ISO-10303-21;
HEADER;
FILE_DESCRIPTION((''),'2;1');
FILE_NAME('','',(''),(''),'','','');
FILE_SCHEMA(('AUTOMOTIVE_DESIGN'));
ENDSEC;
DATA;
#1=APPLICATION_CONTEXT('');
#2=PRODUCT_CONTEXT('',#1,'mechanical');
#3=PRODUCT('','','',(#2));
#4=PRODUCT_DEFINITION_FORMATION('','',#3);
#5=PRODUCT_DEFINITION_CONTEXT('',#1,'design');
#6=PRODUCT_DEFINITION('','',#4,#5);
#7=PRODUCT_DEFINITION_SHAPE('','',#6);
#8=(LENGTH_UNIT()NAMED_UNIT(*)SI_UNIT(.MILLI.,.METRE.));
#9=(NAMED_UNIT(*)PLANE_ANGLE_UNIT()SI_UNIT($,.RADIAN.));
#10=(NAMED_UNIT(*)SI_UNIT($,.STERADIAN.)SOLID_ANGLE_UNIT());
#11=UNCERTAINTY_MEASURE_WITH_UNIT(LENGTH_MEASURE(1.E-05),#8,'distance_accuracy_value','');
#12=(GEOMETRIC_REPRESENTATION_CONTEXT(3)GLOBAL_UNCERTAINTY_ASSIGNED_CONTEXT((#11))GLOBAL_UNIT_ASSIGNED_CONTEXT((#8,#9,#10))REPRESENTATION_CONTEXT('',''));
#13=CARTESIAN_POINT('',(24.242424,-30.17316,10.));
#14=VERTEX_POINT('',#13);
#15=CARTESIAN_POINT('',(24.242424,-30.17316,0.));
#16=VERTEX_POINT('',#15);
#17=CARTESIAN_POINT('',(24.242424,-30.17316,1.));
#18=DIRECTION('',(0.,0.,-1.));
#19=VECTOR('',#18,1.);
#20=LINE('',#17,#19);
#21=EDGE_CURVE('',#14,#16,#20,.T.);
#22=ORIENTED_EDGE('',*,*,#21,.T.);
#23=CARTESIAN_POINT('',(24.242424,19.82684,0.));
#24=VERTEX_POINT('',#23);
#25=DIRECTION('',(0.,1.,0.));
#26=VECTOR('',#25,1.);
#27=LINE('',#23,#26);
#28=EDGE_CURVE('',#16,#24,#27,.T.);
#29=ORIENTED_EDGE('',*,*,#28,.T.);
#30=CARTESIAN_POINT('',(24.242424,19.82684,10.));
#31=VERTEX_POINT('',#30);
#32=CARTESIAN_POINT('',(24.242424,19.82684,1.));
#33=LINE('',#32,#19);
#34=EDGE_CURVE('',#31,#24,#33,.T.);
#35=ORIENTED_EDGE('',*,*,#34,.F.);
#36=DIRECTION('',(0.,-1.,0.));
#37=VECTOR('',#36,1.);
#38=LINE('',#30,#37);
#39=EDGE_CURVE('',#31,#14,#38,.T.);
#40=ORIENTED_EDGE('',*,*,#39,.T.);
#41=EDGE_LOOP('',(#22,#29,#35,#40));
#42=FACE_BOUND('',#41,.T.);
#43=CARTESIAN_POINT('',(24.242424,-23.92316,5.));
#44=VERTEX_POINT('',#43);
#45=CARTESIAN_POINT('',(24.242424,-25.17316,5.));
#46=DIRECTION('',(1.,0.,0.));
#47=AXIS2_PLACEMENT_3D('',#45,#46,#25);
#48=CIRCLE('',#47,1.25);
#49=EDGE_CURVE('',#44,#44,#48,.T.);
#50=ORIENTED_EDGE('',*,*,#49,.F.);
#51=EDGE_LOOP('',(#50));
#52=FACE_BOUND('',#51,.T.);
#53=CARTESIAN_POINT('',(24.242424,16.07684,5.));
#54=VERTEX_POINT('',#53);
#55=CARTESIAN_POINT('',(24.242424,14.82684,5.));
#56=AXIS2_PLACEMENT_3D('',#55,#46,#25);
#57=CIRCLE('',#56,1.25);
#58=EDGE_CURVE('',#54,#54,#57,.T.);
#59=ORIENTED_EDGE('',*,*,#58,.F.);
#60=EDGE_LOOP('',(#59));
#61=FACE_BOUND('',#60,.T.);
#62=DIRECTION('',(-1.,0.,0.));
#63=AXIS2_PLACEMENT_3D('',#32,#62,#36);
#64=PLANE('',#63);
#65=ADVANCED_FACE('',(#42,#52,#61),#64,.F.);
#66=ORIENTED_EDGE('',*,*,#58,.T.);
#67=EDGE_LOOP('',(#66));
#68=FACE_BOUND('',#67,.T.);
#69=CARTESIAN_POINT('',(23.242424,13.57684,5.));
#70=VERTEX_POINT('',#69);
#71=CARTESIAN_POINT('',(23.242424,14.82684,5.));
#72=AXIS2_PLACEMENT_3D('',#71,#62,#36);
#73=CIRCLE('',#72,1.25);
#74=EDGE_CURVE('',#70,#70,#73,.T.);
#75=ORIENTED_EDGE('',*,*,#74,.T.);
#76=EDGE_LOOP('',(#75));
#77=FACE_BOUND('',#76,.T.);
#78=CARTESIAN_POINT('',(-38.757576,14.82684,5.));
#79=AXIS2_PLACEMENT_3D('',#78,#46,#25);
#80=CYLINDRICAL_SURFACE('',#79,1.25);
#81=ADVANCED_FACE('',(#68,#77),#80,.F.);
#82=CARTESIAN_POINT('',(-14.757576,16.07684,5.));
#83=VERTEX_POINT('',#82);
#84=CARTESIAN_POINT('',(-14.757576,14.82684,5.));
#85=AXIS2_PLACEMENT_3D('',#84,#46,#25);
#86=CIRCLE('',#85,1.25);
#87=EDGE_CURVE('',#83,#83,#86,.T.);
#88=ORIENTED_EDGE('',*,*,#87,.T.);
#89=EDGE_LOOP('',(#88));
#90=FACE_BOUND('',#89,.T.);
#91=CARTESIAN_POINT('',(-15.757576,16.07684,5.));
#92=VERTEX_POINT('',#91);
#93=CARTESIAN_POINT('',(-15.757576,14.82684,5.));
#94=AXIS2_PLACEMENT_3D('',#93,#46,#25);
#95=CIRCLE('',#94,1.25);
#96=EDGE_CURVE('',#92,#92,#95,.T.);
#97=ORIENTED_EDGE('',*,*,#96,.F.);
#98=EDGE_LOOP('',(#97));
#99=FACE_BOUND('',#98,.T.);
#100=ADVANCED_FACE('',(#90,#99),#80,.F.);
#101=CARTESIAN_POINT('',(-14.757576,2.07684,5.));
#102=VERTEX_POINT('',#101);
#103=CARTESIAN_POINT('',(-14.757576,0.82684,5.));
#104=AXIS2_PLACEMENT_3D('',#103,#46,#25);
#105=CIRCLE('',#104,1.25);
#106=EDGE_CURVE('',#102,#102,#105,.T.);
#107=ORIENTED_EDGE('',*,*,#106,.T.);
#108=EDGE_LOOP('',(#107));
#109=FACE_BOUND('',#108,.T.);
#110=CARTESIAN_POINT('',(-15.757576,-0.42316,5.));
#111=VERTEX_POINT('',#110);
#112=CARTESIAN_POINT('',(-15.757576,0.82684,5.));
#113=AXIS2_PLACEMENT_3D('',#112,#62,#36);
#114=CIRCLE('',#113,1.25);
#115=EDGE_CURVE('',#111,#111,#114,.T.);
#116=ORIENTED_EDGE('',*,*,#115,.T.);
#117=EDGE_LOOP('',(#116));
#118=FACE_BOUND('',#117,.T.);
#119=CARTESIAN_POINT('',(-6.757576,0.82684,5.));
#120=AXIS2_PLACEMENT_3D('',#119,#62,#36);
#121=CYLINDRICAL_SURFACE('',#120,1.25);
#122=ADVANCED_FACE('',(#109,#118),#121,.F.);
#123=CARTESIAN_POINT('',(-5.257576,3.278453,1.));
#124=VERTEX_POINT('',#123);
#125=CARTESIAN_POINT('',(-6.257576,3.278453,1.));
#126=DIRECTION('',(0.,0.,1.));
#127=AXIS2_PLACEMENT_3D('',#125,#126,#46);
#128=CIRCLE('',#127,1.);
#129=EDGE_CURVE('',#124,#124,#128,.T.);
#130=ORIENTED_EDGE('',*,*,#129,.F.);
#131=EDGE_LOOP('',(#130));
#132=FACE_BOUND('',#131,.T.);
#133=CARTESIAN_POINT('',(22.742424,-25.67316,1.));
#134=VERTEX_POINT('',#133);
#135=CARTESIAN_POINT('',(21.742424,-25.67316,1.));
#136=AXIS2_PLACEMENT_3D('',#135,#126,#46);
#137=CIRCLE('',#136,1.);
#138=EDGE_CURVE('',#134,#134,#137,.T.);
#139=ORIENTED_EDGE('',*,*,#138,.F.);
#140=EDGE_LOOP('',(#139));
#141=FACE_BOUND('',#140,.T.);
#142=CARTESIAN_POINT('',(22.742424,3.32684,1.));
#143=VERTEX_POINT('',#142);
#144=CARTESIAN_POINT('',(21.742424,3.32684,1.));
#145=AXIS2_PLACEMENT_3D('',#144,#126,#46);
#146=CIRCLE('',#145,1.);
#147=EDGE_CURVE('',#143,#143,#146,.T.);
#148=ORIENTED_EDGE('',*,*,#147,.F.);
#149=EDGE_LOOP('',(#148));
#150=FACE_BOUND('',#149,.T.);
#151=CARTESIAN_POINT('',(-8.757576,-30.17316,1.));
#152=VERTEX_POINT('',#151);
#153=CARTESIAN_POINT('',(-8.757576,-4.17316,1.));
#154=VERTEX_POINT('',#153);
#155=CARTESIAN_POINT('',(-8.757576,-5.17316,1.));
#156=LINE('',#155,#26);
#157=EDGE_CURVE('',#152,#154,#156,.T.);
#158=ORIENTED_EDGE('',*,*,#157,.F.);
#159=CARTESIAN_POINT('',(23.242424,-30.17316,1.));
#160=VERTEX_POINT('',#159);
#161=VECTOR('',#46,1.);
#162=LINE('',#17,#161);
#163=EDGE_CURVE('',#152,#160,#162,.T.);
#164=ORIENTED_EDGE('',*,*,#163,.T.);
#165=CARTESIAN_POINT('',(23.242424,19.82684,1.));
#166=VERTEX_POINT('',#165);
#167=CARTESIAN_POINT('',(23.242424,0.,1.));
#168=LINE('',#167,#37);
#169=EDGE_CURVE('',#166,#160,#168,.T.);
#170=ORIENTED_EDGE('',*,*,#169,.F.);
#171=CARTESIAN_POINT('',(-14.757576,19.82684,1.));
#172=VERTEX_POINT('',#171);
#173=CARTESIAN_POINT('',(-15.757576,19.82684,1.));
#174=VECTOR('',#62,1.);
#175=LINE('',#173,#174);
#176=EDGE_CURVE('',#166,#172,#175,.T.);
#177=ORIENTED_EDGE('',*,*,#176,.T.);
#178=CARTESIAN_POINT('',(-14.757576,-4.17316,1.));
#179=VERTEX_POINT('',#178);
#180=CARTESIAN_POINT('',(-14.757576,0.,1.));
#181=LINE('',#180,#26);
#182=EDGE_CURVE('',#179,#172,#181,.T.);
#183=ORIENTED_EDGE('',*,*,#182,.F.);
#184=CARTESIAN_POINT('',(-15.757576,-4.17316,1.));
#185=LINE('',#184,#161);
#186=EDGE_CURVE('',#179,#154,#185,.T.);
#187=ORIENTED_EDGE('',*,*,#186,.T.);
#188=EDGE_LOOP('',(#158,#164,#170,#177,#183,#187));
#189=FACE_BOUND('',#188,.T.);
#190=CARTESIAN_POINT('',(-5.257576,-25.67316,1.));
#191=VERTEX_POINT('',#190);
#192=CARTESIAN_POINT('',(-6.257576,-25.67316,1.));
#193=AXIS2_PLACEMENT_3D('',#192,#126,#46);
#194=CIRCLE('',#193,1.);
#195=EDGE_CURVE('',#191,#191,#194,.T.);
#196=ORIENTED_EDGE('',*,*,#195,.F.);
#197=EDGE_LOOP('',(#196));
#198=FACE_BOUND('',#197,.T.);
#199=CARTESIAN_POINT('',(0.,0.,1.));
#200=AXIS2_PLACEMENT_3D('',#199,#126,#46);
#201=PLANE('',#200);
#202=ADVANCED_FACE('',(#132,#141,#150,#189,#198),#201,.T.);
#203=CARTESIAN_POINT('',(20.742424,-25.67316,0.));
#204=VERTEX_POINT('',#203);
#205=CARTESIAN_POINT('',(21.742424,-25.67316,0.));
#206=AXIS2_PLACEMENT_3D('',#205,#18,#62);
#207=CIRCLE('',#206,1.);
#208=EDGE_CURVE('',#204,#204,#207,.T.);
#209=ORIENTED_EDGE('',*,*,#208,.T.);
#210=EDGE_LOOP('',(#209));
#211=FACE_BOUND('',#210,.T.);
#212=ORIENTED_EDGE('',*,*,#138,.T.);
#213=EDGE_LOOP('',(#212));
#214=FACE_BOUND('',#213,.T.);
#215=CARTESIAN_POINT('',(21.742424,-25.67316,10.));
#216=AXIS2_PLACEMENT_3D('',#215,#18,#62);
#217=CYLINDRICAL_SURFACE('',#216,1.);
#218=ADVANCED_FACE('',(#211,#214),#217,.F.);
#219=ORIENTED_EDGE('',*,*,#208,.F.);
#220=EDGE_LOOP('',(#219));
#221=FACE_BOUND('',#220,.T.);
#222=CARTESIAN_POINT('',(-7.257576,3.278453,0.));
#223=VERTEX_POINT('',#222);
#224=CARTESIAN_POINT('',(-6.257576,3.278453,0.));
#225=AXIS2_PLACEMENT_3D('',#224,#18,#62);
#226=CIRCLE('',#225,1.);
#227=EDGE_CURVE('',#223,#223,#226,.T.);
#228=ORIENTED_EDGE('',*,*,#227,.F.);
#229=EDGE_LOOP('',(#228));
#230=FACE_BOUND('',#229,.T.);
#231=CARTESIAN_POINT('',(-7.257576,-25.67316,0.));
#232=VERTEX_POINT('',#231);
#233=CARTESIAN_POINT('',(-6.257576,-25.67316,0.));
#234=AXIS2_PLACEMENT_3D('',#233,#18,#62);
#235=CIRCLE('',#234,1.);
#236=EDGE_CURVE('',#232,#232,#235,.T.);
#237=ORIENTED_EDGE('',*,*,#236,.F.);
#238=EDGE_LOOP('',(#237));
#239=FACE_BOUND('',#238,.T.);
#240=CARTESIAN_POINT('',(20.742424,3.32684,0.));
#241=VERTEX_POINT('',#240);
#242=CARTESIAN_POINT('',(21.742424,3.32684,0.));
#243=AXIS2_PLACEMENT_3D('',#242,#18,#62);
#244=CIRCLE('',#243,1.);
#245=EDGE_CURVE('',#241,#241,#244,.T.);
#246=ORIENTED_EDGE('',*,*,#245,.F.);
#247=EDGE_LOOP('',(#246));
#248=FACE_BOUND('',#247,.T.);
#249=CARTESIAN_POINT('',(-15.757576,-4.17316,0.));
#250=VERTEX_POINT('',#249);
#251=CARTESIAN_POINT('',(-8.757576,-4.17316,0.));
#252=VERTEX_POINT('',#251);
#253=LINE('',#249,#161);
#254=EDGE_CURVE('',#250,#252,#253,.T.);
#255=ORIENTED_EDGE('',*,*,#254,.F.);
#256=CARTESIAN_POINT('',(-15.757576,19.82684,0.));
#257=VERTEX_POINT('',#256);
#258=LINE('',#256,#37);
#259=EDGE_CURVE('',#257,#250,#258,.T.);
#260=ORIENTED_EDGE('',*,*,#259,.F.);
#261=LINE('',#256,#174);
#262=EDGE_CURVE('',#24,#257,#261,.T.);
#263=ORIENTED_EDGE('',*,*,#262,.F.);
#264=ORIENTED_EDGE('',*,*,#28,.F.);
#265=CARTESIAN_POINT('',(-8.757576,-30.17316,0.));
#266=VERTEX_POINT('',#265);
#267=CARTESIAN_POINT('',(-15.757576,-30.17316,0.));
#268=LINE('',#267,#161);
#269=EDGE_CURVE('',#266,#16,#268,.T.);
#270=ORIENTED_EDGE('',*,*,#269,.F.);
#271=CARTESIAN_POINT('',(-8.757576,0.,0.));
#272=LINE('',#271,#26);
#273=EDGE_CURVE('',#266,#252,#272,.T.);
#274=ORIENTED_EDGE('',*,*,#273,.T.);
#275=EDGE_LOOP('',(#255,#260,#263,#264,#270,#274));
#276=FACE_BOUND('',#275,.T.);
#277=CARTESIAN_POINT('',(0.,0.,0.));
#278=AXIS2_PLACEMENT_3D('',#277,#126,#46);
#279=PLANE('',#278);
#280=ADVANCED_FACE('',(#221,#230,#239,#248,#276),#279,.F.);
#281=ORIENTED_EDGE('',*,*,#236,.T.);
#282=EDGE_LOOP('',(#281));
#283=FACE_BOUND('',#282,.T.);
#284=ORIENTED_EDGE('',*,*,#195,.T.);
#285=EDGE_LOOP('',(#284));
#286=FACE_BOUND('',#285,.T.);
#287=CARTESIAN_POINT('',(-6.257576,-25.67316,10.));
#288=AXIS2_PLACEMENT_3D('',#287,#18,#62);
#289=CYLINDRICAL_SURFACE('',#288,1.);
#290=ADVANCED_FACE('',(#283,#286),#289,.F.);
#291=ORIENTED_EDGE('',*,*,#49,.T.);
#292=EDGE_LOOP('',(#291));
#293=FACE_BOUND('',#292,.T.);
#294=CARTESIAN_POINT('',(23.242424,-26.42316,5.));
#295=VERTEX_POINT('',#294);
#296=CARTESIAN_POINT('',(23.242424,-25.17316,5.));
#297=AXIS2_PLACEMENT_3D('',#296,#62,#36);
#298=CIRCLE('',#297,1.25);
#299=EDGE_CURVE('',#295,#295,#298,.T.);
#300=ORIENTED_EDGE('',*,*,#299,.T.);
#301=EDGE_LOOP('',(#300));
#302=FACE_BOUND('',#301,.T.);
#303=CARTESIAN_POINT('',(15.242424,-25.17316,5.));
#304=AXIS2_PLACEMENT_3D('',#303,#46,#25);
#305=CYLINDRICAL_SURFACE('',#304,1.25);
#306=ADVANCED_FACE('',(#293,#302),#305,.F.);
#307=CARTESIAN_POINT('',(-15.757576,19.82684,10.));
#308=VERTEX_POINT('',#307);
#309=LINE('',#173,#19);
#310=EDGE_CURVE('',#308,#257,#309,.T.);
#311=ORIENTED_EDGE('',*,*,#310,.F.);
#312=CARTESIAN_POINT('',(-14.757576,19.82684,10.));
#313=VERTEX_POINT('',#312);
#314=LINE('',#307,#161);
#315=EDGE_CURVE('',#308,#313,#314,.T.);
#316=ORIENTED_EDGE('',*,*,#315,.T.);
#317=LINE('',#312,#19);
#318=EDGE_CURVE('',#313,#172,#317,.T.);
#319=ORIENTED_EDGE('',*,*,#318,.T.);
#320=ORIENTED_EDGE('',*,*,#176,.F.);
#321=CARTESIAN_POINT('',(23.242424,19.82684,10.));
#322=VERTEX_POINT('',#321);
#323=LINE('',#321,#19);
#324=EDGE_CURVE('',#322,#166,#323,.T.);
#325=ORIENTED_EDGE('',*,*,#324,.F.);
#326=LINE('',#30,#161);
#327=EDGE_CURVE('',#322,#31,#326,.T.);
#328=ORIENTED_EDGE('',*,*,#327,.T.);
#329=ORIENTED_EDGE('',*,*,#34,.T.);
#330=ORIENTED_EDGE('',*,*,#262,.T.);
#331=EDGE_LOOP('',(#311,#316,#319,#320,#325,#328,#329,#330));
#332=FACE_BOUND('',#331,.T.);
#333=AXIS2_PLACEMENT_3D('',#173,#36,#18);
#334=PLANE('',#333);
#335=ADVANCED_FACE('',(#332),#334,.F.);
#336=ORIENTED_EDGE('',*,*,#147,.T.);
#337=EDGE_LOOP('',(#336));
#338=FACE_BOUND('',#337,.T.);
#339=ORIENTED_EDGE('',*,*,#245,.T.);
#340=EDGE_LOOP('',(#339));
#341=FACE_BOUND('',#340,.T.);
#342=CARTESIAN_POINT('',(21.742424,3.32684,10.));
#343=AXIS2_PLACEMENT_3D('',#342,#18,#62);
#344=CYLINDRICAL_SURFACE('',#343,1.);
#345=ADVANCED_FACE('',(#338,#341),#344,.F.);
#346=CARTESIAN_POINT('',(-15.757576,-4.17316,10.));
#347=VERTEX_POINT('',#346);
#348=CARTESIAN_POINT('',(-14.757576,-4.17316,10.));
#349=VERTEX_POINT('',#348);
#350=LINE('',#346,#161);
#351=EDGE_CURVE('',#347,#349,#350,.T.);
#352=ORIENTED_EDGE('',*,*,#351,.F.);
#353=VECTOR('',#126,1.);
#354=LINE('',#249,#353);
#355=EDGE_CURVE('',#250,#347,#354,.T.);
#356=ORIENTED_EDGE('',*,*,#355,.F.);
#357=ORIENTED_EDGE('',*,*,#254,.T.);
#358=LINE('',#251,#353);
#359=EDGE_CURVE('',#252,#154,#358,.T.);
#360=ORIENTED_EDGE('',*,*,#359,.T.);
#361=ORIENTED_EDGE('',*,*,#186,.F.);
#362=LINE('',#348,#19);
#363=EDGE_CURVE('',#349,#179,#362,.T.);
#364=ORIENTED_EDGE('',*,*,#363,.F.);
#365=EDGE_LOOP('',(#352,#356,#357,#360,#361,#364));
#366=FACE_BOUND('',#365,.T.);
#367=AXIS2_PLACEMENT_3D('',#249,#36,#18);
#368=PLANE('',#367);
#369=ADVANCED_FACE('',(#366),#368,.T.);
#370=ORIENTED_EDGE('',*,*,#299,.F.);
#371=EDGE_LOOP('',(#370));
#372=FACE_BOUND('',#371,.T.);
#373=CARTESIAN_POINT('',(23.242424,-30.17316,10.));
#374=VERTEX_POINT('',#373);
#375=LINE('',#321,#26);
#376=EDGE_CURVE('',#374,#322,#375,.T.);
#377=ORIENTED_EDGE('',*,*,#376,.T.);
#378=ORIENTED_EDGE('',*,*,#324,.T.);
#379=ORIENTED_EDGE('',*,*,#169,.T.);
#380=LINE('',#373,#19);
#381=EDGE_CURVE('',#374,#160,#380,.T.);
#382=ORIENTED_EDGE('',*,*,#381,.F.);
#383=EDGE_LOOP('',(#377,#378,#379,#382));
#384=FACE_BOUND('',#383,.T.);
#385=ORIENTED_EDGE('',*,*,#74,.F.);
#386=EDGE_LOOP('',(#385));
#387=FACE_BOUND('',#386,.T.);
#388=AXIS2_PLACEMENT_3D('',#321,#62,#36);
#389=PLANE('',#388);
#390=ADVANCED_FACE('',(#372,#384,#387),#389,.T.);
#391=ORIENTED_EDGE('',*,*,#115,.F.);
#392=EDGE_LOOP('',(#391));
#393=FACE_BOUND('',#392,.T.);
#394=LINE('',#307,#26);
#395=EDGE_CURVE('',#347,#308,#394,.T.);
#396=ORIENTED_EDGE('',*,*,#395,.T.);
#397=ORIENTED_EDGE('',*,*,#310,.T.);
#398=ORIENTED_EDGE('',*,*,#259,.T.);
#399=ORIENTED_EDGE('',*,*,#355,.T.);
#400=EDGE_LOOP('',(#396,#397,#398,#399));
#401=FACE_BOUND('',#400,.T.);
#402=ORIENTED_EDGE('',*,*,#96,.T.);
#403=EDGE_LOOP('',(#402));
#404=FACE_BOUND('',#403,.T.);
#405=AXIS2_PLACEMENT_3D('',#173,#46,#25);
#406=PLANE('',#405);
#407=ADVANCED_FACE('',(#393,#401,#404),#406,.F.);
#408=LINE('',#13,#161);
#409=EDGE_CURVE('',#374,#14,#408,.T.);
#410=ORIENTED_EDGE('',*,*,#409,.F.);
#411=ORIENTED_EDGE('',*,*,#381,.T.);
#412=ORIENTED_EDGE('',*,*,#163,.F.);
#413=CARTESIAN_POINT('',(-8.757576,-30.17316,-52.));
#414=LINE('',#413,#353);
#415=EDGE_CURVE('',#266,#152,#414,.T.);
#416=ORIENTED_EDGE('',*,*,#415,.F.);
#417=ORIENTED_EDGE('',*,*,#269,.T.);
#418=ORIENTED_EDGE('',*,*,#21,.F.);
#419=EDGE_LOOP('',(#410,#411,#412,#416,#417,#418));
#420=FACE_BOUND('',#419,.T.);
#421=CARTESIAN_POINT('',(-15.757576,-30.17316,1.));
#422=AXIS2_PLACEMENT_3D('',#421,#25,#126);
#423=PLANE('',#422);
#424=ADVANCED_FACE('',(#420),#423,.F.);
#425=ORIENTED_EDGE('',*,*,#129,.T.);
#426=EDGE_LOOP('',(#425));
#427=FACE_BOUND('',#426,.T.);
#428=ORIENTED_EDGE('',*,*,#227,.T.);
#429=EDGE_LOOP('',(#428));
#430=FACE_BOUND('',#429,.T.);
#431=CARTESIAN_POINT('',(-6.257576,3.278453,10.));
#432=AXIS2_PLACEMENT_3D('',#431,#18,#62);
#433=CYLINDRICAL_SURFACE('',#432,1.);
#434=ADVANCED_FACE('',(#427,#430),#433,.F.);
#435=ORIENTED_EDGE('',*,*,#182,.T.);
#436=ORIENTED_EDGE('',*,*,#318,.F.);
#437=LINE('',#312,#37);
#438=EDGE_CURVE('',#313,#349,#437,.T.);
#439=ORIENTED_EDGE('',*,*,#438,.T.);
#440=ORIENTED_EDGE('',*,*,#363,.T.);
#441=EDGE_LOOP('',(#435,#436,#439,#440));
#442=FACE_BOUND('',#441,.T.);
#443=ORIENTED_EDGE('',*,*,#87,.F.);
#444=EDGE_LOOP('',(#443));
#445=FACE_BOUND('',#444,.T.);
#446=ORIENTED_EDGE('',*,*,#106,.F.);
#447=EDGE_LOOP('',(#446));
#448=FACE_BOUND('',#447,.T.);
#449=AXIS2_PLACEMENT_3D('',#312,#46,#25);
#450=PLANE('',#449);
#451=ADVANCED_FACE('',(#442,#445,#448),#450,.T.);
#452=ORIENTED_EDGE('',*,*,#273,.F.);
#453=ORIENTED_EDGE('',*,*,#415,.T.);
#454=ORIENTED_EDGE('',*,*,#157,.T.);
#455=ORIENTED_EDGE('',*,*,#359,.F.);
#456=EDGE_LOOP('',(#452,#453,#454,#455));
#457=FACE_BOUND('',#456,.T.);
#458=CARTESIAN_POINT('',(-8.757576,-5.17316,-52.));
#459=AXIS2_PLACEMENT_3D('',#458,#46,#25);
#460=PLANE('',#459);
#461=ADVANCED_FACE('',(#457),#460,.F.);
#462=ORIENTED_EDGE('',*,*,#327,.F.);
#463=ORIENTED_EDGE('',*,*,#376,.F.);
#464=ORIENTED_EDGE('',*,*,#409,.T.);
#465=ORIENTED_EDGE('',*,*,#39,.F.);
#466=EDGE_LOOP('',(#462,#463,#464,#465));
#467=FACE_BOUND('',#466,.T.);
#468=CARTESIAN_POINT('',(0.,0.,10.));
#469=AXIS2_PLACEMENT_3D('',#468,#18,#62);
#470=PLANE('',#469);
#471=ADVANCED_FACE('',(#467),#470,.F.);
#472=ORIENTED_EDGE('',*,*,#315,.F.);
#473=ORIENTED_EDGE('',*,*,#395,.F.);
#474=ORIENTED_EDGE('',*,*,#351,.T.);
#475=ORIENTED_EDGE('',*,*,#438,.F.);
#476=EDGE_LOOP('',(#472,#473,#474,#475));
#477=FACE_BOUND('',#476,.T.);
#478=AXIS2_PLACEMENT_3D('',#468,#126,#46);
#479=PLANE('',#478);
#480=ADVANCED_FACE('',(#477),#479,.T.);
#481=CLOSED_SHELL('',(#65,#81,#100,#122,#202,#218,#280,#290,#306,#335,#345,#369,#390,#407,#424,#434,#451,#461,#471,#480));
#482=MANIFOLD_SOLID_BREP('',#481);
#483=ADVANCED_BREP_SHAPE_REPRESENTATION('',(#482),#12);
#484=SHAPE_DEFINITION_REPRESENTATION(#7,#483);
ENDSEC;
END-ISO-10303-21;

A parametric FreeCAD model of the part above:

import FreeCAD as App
import Part
import Sketcher
Q = App.Units.Quantity


def add_polygon(sketch, points):
    """Adds a closed chain of lines whose ends are joined by coincident constraints."""
    first, n = sketch.GeometryCount, len(points)
    for a, b in zip(points, points[1:] + points[:1]):
        sketch.addGeometry(Part.LineSegment(App.Vector(*a, 0), App.Vector(*b, 0)), False)
    for i in range(n):
        sketch.addConstraint(Sketcher.Constraint("Coincident", first + i, 2, first + (i + 1) % n, 1))

doc = App.newDocument("Part")
body = doc.addObject("PartDesign::Body", "Body")

# Sketch on XY plane
sketch1 = doc.addObject("Sketcher::SketchObject", "Sketch")
body.addObject(sketch1)
sketch1.AttachmentSupport = (doc.XY_Plane, [""])
sketch1.MapMode = "FlatFace"
add_polygon(sketch1, [(-16, 20), (-16, -30), (24, -30), (24, 20)])  # lines 0-3
sketch1.addConstraint(Sketcher.Constraint("Vertical", 0))
sketch1.addConstraint(Sketcher.Constraint("Horizontal", 1))
sketch1.addConstraint(Sketcher.Constraint("Vertical", 2))
sketch1.addConstraint(Sketcher.Constraint("Horizontal", 3))
sketch1.addConstraint(Sketcher.Constraint("DistanceX", 1, 1, 1, 2, Q("40 mm")))
sketch1.addConstraint(Sketcher.Constraint("DistanceY", 0, 2, 0, 1, Q("50 mm")))
sketch1.addConstraint(Sketcher.Constraint("DistanceY", 0, 2, -1, 1, Q("30.17316 mm")))
sketch1.addConstraint(Sketcher.Constraint("DistanceX", 0, 2, -1, 1, Q("15.757576 mm")))
pad1 = doc.addObject("PartDesign::Pad", "Pad")
body.addObject(pad1)
pad1.Profile = sketch1
pad1.Length = 1

# Sketch on XY plane
sketch2 = doc.addObject("Sketcher::SketchObject", "Sketch001")
body.addObject(sketch2)
sketch2.AttachmentSupport = (doc.XY_Plane, [""])
sketch2.MapMode = "FlatFace"
sketch2.AttachmentOffset = App.Placement(App.Vector(0, 0, 1), App.Rotation())
add_polygon(sketch2, [(-16, -5), (-16, -30), (-11, -30), (-11, -5)])  # lines 0-3
sketch2.addConstraint(Sketcher.Constraint("Vertical", 0))
sketch2.addConstraint(Sketcher.Constraint("Horizontal", 1))
sketch2.addConstraint(Sketcher.Constraint("Vertical", 2))
sketch2.addConstraint(Sketcher.Constraint("Horizontal", 3))
sketch2.addConstraint(Sketcher.Constraint("DistanceX", 1, 1, 1, 2, Q("5 mm")))
sketch2.addConstraint(Sketcher.Constraint("DistanceY", 0, 2, 0, 1, Q("25 mm")))
sketch2.addConstraint(Sketcher.Constraint("DistanceY", 0, 2, -1, 1, Q("30.17316 mm")))
sketch2.addConstraint(Sketcher.Constraint("DistanceX", 0, 2, -1, 1, Q("15.757576 mm")))
pocket1 = doc.addObject("PartDesign::Pocket", "Pocket")
body.addObject(pocket1)
pocket1.Profile = sketch2
pocket1.Length = 1

# Sketch on XY plane
sketch3 = doc.addObject("Sketcher::SketchObject", "Sketch002")
body.addObject(sketch3)
sketch3.AttachmentSupport = (doc.XY_Plane, [""])
sketch3.MapMode = "FlatFace"
add_polygon(sketch3, [(-14.8, 19.8), (-14.8, -5.2), (-15.8, -5.2), (-15.8, 19.8)])  # lines 0-3
add_polygon(sketch3, [(24.2, 19.8), (24.2, -5.2), (23.2, -5.2), (23.2, 19.8)])  # lines 4-7
sketch3.addConstraint(Sketcher.Constraint("Vertical", 0))
sketch3.addConstraint(Sketcher.Constraint("Horizontal", 1))
sketch3.addConstraint(Sketcher.Constraint("Vertical", 2))
sketch3.addConstraint(Sketcher.Constraint("Horizontal", 3))
sketch3.addConstraint(Sketcher.Constraint("Vertical", 4))
sketch3.addConstraint(Sketcher.Constraint("Horizontal", 5))
sketch3.addConstraint(Sketcher.Constraint("Vertical", 6))
sketch3.addConstraint(Sketcher.Constraint("Horizontal", 7))
sketch3.addConstraint(Sketcher.Constraint("Horizontal", 1, 2, 4, 2))
sketch3.addConstraint(Sketcher.Constraint("Horizontal", 3, 2, 6, 2))
sketch3.addConstraint(Sketcher.Constraint("Equal", 3, 5))
sketch3.addConstraint(Sketcher.Constraint("DistanceX", 1, 2, 1, 1, Q("1 mm")))
sketch3.addConstraint(Sketcher.Constraint("DistanceY", 0, 2, 0, 1, Q("25 mm")))
sketch3.addConstraint(Sketcher.Constraint("DistanceX", 0, 2, 4, 2, Q("39 mm")))
sketch3.addConstraint(Sketcher.Constraint("DistanceY", 0, 2, -1, 1, Q("5.17316 mm")))
sketch3.addConstraint(Sketcher.Constraint("DistanceX", 0, 2, -1, 1, Q("14.757576 mm")))
pad2 = doc.addObject("PartDesign::Pad", "Pad001")
body.addObject(pad2)
pad2.Profile = sketch3
pad2.Length = 10

# Sketch on YZ plane
sketch4 = doc.addObject("Sketcher::SketchObject", "Sketch003")
body.addObject(sketch4)
sketch4.AttachmentSupport = (doc.YZ_Plane, [""])
sketch4.MapMode = "FlatFace"
sketch4.AttachmentOffset = App.Placement(App.Vector(0, 0, 24.242424), App.Rotation())
sketch4.addGeometry(Part.Circle(App.Vector(-0.2, 5, 0), App.Vector(0, 0, 1), 1.2), False)
sketch4.addGeometry(Part.Circle(App.Vector(14.8, 5, 0), App.Vector(0, 0, 1), 1.2), False)
sketch4.addConstraint(Sketcher.Constraint("Equal", 0, 1))
sketch4.addConstraint(Sketcher.Constraint("Horizontal", 0, 3, 1, 3))
sketch4.addConstraint(Sketcher.Constraint("Diameter", 0, Q("2.5 mm")))
sketch4.addConstraint(Sketcher.Constraint("DistanceY", -1, 1, 0, 3, Q("5 mm")))
sketch4.addConstraint(Sketcher.Constraint("DistanceX", 0, 3, 1, 3, Q("15 mm")))
sketch4.addConstraint(Sketcher.Constraint("DistanceX", 0, 3, -1, 1, Q("0.17316 mm")))
pocket2 = doc.addObject("PartDesign::Pocket", "Pocket001")
body.addObject(pocket2)
pocket2.Profile = sketch4
pocket2.Length = 63

# Sketch on YZ plane
sketch5 = doc.addObject("Sketcher::SketchObject", "Sketch004")
body.addObject(sketch5)
sketch5.AttachmentSupport = (doc.YZ_Plane, [""])
sketch5.MapMode = "FlatFace"
sketch5.AttachmentOffset = App.Placement(App.Vector(0, 0, 24.242424), App.Rotation())
sketch5.addGeometry(Part.Circle(App.Vector(-0.2, 5, 0), App.Vector(0, 0, 1), 1.2), False)
sketch5.addConstraint(Sketcher.Constraint("Diameter", 0, Q("2.5 mm")))
sketch5.addConstraint(Sketcher.Constraint("DistanceY", -1, 1, 0, 3, Q("5 mm")))
sketch5.addConstraint(Sketcher.Constraint("DistanceX", 0, 3, -1, 1, Q("0.17316 mm")))
pad3 = doc.addObject("PartDesign::Pad", "Pad002")
body.addObject(pad3)
pad3.Profile = sketch5
pad3.Length = 1
pad3.Reversed = True

# Sketch on XY plane
sketch6 = doc.addObject("Sketcher::SketchObject", "Sketch005")
body.addObject(sketch6)
sketch6.AttachmentSupport = (doc.XY_Plane, [""])
sketch6.MapMode = "FlatFace"
sketch6.AttachmentOffset = App.Placement(App.Vector(0, 0, 10), App.Rotation())
add_polygon(sketch6, [(-16, 5), (-16, -5), (24, -5), (24, 5)])  # lines 0-3
sketch6.addConstraint(Sketcher.Constraint("Vertical", 0))
sketch6.addConstraint(Sketcher.Constraint("Horizontal", 1))
sketch6.addConstraint(Sketcher.Constraint("Vertical", 2))
sketch6.addConstraint(Sketcher.Constraint("Horizontal", 3))
sketch6.addConstraint(Sketcher.Constraint("DistanceX", 1, 1, 1, 2, Q("40 mm")))
sketch6.addConstraint(Sketcher.Constraint("DistanceY", 0, 2, 0, 1, Q("10 mm")))
sketch6.addConstraint(Sketcher.Constraint("DistanceY", 0, 2, -1, 1, Q("5.17316 mm")))
sketch6.addConstraint(Sketcher.Constraint("DistanceX", 0, 2, -1, 1, Q("15.757576 mm")))
pocket3 = doc.addObject("PartDesign::Pocket", "Pocket002")
body.addObject(pocket3)
pocket3.Profile = sketch6
pocket3.Length = 9

# Sketch on YZ plane
sketch7 = doc.addObject("Sketcher::SketchObject", "Sketch006")
body.addObject(sketch7)
sketch7.AttachmentSupport = (doc.YZ_Plane, [""])
sketch7.MapMode = "FlatFace"
sketch7.AttachmentOffset = App.Placement(App.Vector(0, 0, -15.757576), App.Rotation())
sketch7.addGeometry(Part.Circle(App.Vector(9.8, 5, 0), App.Vector(0, 0, 1), 1.2), False)
sketch7.addConstraint(Sketcher.Constraint("Diameter", 0, Q("2.5 mm")))
sketch7.addConstraint(Sketcher.Constraint("DistanceY", -1, 1, 0, 3, Q("5 mm")))
sketch7.addConstraint(Sketcher.Constraint("DistanceX", -1, 1, 0, 3, Q("9.82684 mm")))
pocket4 = doc.addObject("PartDesign::Pocket", "Pocket003")
body.addObject(pocket4)
pocket4.Profile = sketch7
pocket4.Length = 53
pocket4.Reversed = True

# Sketch on XY plane
sketch8 = doc.addObject("Sketcher::SketchObject", "Sketch007")
body.addObject(sketch8)
sketch8.AttachmentSupport = (doc.XY_Plane, [""])
sketch8.MapMode = "FlatFace"
sketch8.AttachmentOffset = App.Placement(App.Vector(0, 0, 1), App.Rotation())
add_polygon(sketch8, [(-10.8, -5.2), (-10.8, -30.2), (-8.8, -30.2), (-8.8, -5.2)])  # lines 0-3
sketch8.addConstraint(Sketcher.Constraint("Vertical", 0))
sketch8.addConstraint(Sketcher.Constraint("Horizontal", 1))
sketch8.addConstraint(Sketcher.Constraint("Vertical", 2))
sketch8.addConstraint(Sketcher.Constraint("Horizontal", 3))
sketch8.addConstraint(Sketcher.Constraint("DistanceX", 1, 1, 1, 2, Q("2 mm")))
sketch8.addConstraint(Sketcher.Constraint("DistanceY", 0, 2, 0, 1, Q("25 mm")))
sketch8.addConstraint(Sketcher.Constraint("DistanceY", 0, 2, -1, 1, Q("30.17316 mm")))
sketch8.addConstraint(Sketcher.Constraint("DistanceX", 0, 2, -1, 1, Q("10.757576 mm")))
pocket5 = doc.addObject("PartDesign::Pocket", "Pocket004")
body.addObject(pocket5)
pocket5.Profile = sketch8
pocket5.Length = 53

# Sketch on XY plane
sketch9 = doc.addObject("Sketcher::SketchObject", "Sketch008")
body.addObject(sketch9)
sketch9.AttachmentSupport = (doc.XY_Plane, [""])
sketch9.MapMode = "FlatFace"
sketch9.AttachmentOffset = App.Placement(App.Vector(0, 0, 1), App.Rotation())
add_polygon(sketch9, [(-15.8, -3.2), (-15.8, -5.2), (-8.8, -5.2), (-8.8, -3.2)])  # lines 0-3
sketch9.addConstraint(Sketcher.Constraint("Vertical", 0))
sketch9.addConstraint(Sketcher.Constraint("Horizontal", 1))
sketch9.addConstraint(Sketcher.Constraint("Vertical", 2))
sketch9.addConstraint(Sketcher.Constraint("Horizontal", 3))
sketch9.addConstraint(Sketcher.Constraint("DistanceX", 1, 1, 1, 2, Q("7 mm")))
sketch9.addConstraint(Sketcher.Constraint("DistanceY", 0, 2, 0, 1, Q("2 mm")))
sketch9.addConstraint(Sketcher.Constraint("DistanceY", 0, 2, -1, 1, Q("5.17316 mm")))
sketch9.addConstraint(Sketcher.Constraint("DistanceX", 0, 2, -1, 1, Q("15.757576 mm")))
pocket6 = doc.addObject("PartDesign::Pocket", "Pocket005")
body.addObject(pocket6)
pocket6.Profile = sketch9
pocket6.Length = 53

# Sketch on YZ plane
sketch10 = doc.addObject("Sketcher::SketchObject", "Sketch009")
body.addObject(sketch10)
sketch10.AttachmentSupport = (doc.YZ_Plane, [""])
sketch10.MapMode = "FlatFace"
sketch10.AttachmentOffset = App.Placement(App.Vector(0, 0, 24.242424), App.Rotation())
add_polygon(sketch10, [(5, 10), (-16, 10), (-16, 1), (5, 1)])  # lines 0-3
sketch10.addConstraint(Sketcher.Constraint("Horizontal", 0))
sketch10.addConstraint(Sketcher.Constraint("Vertical", 1))
sketch10.addConstraint(Sketcher.Constraint("Horizontal", 2))
sketch10.addConstraint(Sketcher.Constraint("Vertical", 3))
sketch10.addConstraint(Sketcher.Constraint("DistanceY", 1, 2, 1, 1, Q("9 mm")))
sketch10.addConstraint(Sketcher.Constraint("DistanceY", -1, 1, 0, 2, Q("10 mm")))
sketch10.addConstraint(Sketcher.Constraint("DistanceX", 0, 2, 0, 1, Q("20.650485 mm")))
sketch10.addConstraint(Sketcher.Constraint("DistanceX", -1, 1, 2, 2, Q("4.82684 mm")))
pad4 = doc.addObject("PartDesign::Pad", "Pad003")
body.addObject(pad4)
pad4.Profile = sketch10
pad4.Length = 1
pad4.Reversed = True

# Sketch on YZ plane
sketch11 = doc.addObject("Sketcher::SketchObject", "Sketch010")
body.addObject(sketch11)
sketch11.AttachmentSupport = (doc.YZ_Plane, [""])
sketch11.MapMode = "FlatFace"
sketch11.AttachmentOffset = App.Placement(App.Vector(0, 0, 24.242424), App.Rotation())
sketch11.addGeometry(Part.Circle(App.Vector(-10.8, 5, 0), App.Vector(0, 0, 1), 1.2), False)
sketch11.addConstraint(Sketcher.Constraint("Diameter", 0, Q("2.5 mm")))
sketch11.addConstraint(Sketcher.Constraint("DistanceY", -1, 1, 0, 3, Q("5 mm")))
sketch11.addConstraint(Sketcher.Constraint("DistanceX", 0, 3, -1, 1, Q("10.823645 mm")))
pocket7 = doc.addObject("PartDesign::Pocket", "Pocket006")
body.addObject(pocket7)
pocket7.Profile = sketch11
pocket7.Length = 1

# Sketch on YZ plane
sketch12 = doc.addObject("Sketcher::SketchObject", "Sketch011")
body.addObject(sketch12)
sketch12.AttachmentSupport = (doc.YZ_Plane, [""])
sketch12.MapMode = "FlatFace"
sketch12.AttachmentOffset = App.Placement(App.Vector(0, 0, 24.242424), App.Rotation())
sketch12.addGeometry(Part.Circle(App.Vector(9.8, 5, 0), App.Vector(0, 0, 1), 1.2), False)
sketch12.addConstraint(Sketcher.Constraint("Diameter", 0, Q("2.5 mm")))
sketch12.addConstraint(Sketcher.Constraint("DistanceY", -1, 1, 0, 3, Q("5 mm")))
sketch12.addConstraint(Sketcher.Constraint("DistanceX", -1, 1, 0, 3, Q("9.82684 mm")))
pad5 = doc.addObject("PartDesign::Pad", "Pad004")
body.addObject(pad5)
pad5.Profile = sketch12
pad5.Length = 1
pad5.Reversed = True

# Sketch on YZ plane
sketch13 = doc.addObject("Sketcher::SketchObject", "Sketch012")
body.addObject(sketch13)
sketch13.AttachmentSupport = (doc.YZ_Plane, [""])
sketch13.MapMode = "FlatFace"
sketch13.AttachmentOffset = App.Placement(App.Vector(0, 0, -15.757576), App.Rotation())
sketch13.addGeometry(Part.Circle(App.Vector(9.8, 5, 0), App.Vector(0, 0, 1), 1.2), False)
sketch13.addConstraint(Sketcher.Constraint("Diameter", 0, Q("2.5 mm")))
sketch13.addConstraint(Sketcher.Constraint("DistanceY", -1, 1, 0, 3, Q("5 mm")))
sketch13.addConstraint(Sketcher.Constraint("DistanceX", -1, 1, 0, 3, Q("9.82684 mm")))
pad6 = doc.addObject("PartDesign::Pad", "Pad005")
body.addObject(pad6)
pad6.Profile = sketch13
pad6.Length = 1

# Sketch on XY plane
sketch14 = doc.addObject("Sketcher::SketchObject", "Sketch013")
body.addObject(sketch14)
sketch14.AttachmentSupport = (doc.XY_Plane, [""])
sketch14.MapMode = "FlatFace"
sketch14.AttachmentOffset = App.Placement(App.Vector(0, 0, 1), App.Rotation())
add_polygon(sketch14, [(-15.8, -3.2), (-15.8, -4.2), (-8.8, -4.2), (-8.8, -3.2)])  # lines 0-3
sketch14.addConstraint(Sketcher.Constraint("Vertical", 0))
sketch14.addConstraint(Sketcher.Constraint("Horizontal", 1))
sketch14.addConstraint(Sketcher.Constraint("Vertical", 2))
sketch14.addConstraint(Sketcher.Constraint("Horizontal", 3))
sketch14.addConstraint(Sketcher.Constraint("DistanceX", 1, 1, 1, 2, Q("7 mm")))
sketch14.addConstraint(Sketcher.Constraint("DistanceY", 0, 2, 0, 1, Q("1 mm")))
sketch14.addConstraint(Sketcher.Constraint("DistanceY", 0, 2, -1, 1, Q("4.17316 mm")))
sketch14.addConstraint(Sketcher.Constraint("DistanceX", 0, 2, -1, 1, Q("15.757576 mm")))
pad7 = doc.addObject("PartDesign::Pad", "Pad006")
body.addObject(pad7)
pad7.Profile = sketch14
pad7.Length = 1
pad7.Reversed = True

# Sketch on XY plane
sketch15 = doc.addObject("Sketcher::SketchObject", "Sketch014")
body.addObject(sketch15)
sketch15.AttachmentSupport = (doc.XY_Plane, [""])
sketch15.MapMode = "FlatFace"
sketch15.AttachmentOffset = App.Placement(App.Vector(0, 0, 1), App.Rotation())
add_polygon(sketch15, [(-15.8, 4.8), (-15.8, -4.2), (-14.8, -4.2), (-14.8, 4.8)])  # lines 0-3
sketch15.addConstraint(Sketcher.Constraint("Vertical", 0))
sketch15.addConstraint(Sketcher.Constraint("Horizontal", 1))
sketch15.addConstraint(Sketcher.Constraint("Vertical", 2))
sketch15.addConstraint(Sketcher.Constraint("Horizontal", 3))
sketch15.addConstraint(Sketcher.Constraint("DistanceX", 1, 1, 1, 2, Q("1 mm")))
sketch15.addConstraint(Sketcher.Constraint("DistanceY", 0, 2, 0, 1, Q("9 mm")))
sketch15.addConstraint(Sketcher.Constraint("DistanceY", 0, 2, -1, 1, Q("4.17316 mm")))
sketch15.addConstraint(Sketcher.Constraint("DistanceX", 0, 2, -1, 1, Q("15.757576 mm")))
pad8 = doc.addObject("PartDesign::Pad", "Pad007")
body.addObject(pad8)
pad8.Profile = sketch15
pad8.Length = 9

# Sketch on YZ plane
sketch16 = doc.addObject("Sketcher::SketchObject", "Sketch015")
body.addObject(sketch16)
sketch16.AttachmentSupport = (doc.YZ_Plane, [""])
sketch16.MapMode = "FlatFace"
sketch16.AttachmentOffset = App.Placement(App.Vector(0, 0, -15.757576), App.Rotation())
sketch16.addGeometry(Part.Circle(App.Vector(14.8, 5, 0), App.Vector(0, 0, 1), 1.2), False)
sketch16.addGeometry(Part.Circle(App.Vector(0.8, 5, 0), App.Vector(0, 0, 1), 1.2), False)
sketch16.addConstraint(Sketcher.Constraint("Equal", 0, 1))
sketch16.addConstraint(Sketcher.Constraint("Horizontal", 0, 3, 1, 3))
sketch16.addConstraint(Sketcher.Constraint("Diameter", 0, Q("2.5 mm")))
sketch16.addConstraint(Sketcher.Constraint("DistanceY", -1, 1, 0, 3, Q("5 mm")))
sketch16.addConstraint(Sketcher.Constraint("DistanceX", 1, 3, 0, 3, Q("14 mm")))
sketch16.addConstraint(Sketcher.Constraint("DistanceX", -1, 1, 0, 3, Q("14.82684 mm")))
pocket8 = doc.addObject("PartDesign::Pocket", "Pocket007")
body.addObject(pocket8)
pocket8.Profile = sketch16
pocket8.Length = 9
pocket8.Reversed = True

# Sketch on XY plane
sketch17 = doc.addObject("Sketcher::SketchObject", "Sketch016")
body.addObject(sketch17)
sketch17.AttachmentSupport = (doc.XY_Plane, [""])
sketch17.MapMode = "FlatFace"
sketch17.AttachmentOffset = App.Placement(App.Vector(0, 0, 1), App.Rotation())
add_polygon(sketch17, [(23.2, 1.2), (23.2, -30.2), (24.2, -30.2), (24.2, 1.2)])  # lines 0-3
sketch17.addConstraint(Sketcher.Constraint("Vertical", 0))
sketch17.addConstraint(Sketcher.Constraint("Horizontal", 1))
sketch17.addConstraint(Sketcher.Constraint("Vertical", 2))
sketch17.addConstraint(Sketcher.Constraint("Horizontal", 3))
sketch17.addConstraint(Sketcher.Constraint("DistanceX", 1, 1, 1, 2, Q("1 mm")))
sketch17.addConstraint(Sketcher.Constraint("DistanceY", 0, 2, 0, 1, Q("31.40689 mm")))
sketch17.addConstraint(Sketcher.Constraint("DistanceY", 0, 2, -1, 1, Q("30.17316 mm")))
sketch17.addConstraint(Sketcher.Constraint("DistanceX", -1, 1, 0, 2, Q("23.242424 mm")))
pad9 = doc.addObject("PartDesign::Pad", "Pad008")
body.addObject(pad9)
pad9.Profile = sketch17
pad9.Length = 9

# Sketch on YZ plane
sketch18 = doc.addObject("Sketcher::SketchObject", "Sketch017")
body.addObject(sketch18)
sketch18.AttachmentSupport = (doc.YZ_Plane, [""])
sketch18.MapMode = "FlatFace"
sketch18.AttachmentOffset = App.Placement(App.Vector(0, 0, 24.242424), App.Rotation())
sketch18.addGeometry(Part.Circle(App.Vector(-25.2, 5, 0), App.Vector(0, 0, 1), 1.2), False)
sketch18.addConstraint(Sketcher.Constraint("Diameter", 0, Q("2.5 mm")))
sketch18.addConstraint(Sketcher.Constraint("DistanceY", -1, 1, 0, 3, Q("5 mm")))
sketch18.addConstraint(Sketcher.Constraint("DistanceX", 0, 3, -1, 1, Q("25.17316 mm")))
pocket9 = doc.addObject("PartDesign::Pocket", "Pocket008")
body.addObject(pocket9)
pocket9.Profile = sketch18
pocket9.Length = 9

# Sketch on XY plane
sketch19 = doc.addObject("Sketcher::SketchObject", "Sketch018")
body.addObject(sketch19)
sketch19.AttachmentSupport = (doc.XY_Plane, [""])
sketch19.MapMode = "FlatFace"
sketch19.AttachmentOffset = App.Placement(App.Vector(0, 0, 1), App.Rotation())
add_polygon(sketch19, [(-8.8, -29.2), (-8.8, -30.2), (24.2, -30.2), (24.2, -29.2)])  # lines 0-3
sketch19.addConstraint(Sketcher.Constraint("Vertical", 0))
sketch19.addConstraint(Sketcher.Constraint("Horizontal", 1))
sketch19.addConstraint(Sketcher.Constraint("Vertical", 2))
sketch19.addConstraint(Sketcher.Constraint("Horizontal", 3))
sketch19.addConstraint(Sketcher.Constraint("DistanceX", 1, 1, 1, 2, Q("33 mm")))
sketch19.addConstraint(Sketcher.Constraint("DistanceY", 0, 2, 0, 1, Q("1 mm")))
sketch19.addConstraint(Sketcher.Constraint("DistanceY", 0, 2, -1, 1, Q("30.17316 mm")))
sketch19.addConstraint(Sketcher.Constraint("DistanceX", 0, 2, -1, 1, Q("8.757576 mm")))
pad10 = doc.addObject("PartDesign::Pad", "Pad009")
body.addObject(pad10)
pad10.Profile = sketch19
pad10.Length = 9

# Sketch on XZ plane
sketch20 = doc.addObject("Sketcher::SketchObject", "Sketch019")
body.addObject(sketch20)
sketch20.AttachmentSupport = (doc.XZ_Plane, [""])
sketch20.MapMode = "FlatFace"
sketch20.AttachmentOffset = App.Placement(App.Vector(0, 0, 30.17316), App.Rotation())
sketch20.addGeometry(Part.Circle(App.Vector(-3.8, 5, 0), App.Vector(0, 0, 1), 1.2), False)
sketch20.addGeometry(Part.Circle(App.Vector(19.2, 5, 0), App.Vector(0, 0, 1), 1.2), False)
sketch20.addConstraint(Sketcher.Constraint("Equal", 0, 1))
sketch20.addConstraint(Sketcher.Constraint("Horizontal", 0, 3, 1, 3))
sketch20.addConstraint(Sketcher.Constraint("Diameter", 0, Q("2.5 mm")))
sketch20.addConstraint(Sketcher.Constraint("DistanceY", -1, 1, 0, 3, Q("5 mm")))
sketch20.addConstraint(Sketcher.Constraint("DistanceX", 0, 3, 1, 3, Q("23 mm")))
sketch20.addConstraint(Sketcher.Constraint("DistanceX", 0, 3, -1, 1, Q("3.757576 mm")))
pocket10 = doc.addObject("PartDesign::Pocket", "Pocket009")
body.addObject(pocket10)
pocket10.Profile = sketch20
pocket10.Length = 9

# Sketch on XY plane
sketch21 = doc.addObject("Sketcher::SketchObject", "Sketch020")
body.addObject(sketch21)
sketch21.AttachmentSupport = (doc.XY_Plane, [""])
sketch21.MapMode = "FlatFace"
sketch21.addGeometry(Part.Circle(App.Vector(21.7, 3.3, 0), App.Vector(0, 0, 1), 1), False)
sketch21.addGeometry(Part.Circle(App.Vector(-6.3, 3.3, 0), App.Vector(0, 0, 1), 1), False)
sketch21.addGeometry(Part.Circle(App.Vector(-6.3, -25.7, 0), App.Vector(0, 0, 1), 1), False)
sketch21.addGeometry(Part.Circle(App.Vector(21.7, -25.7, 0), App.Vector(0, 0, 1), 1), False)
sketch21.addConstraint(Sketcher.Constraint("Equal", 0, 1))
sketch21.addConstraint(Sketcher.Constraint("Equal", 1, 2))
sketch21.addConstraint(Sketcher.Constraint("Equal", 2, 3))
sketch21.addConstraint(Sketcher.Constraint("Horizontal", 2, 3, 3, 3))
sketch21.addConstraint(Sketcher.Constraint("Vertical", 1, 3, 2, 3))
sketch21.addConstraint(Sketcher.Constraint("Vertical", 0, 3, 3, 3))
sketch21.addConstraint(Sketcher.Constraint("Diameter", 0, Q("2 mm")))
sketch21.addConstraint(Sketcher.Constraint("DistanceX", 1, 3, 0, 3, Q("28 mm")))
sketch21.addConstraint(Sketcher.Constraint("DistanceY", 2, 3, 0, 3, Q("29 mm")))
sketch21.addConstraint(Sketcher.Constraint("DistanceY", -1, 1, 0, 3, Q("3.32684 mm")))
sketch21.addConstraint(Sketcher.Constraint("DistanceX", -1, 1, 0, 3, Q("21.742424 mm")))
sketch21.addConstraint(Sketcher.Constraint("DistanceY", -1, 1, 1, 3, Q("3.278453 mm")))
pocket11 = doc.addObject("PartDesign::Pocket", "Pocket010")
body.addObject(pocket11)
pocket11.Profile = sketch21
pocket11.Length = 10
pocket11.Reversed = True

# Sketch on XY plane
sketch22 = doc.addObject("Sketcher::SketchObject", "Sketch021")
body.addObject(sketch22)
sketch22.AttachmentSupport = (doc.XY_Plane, [""])
sketch22.MapMode = "FlatFace"
sketch22.AttachmentOffset = App.Placement(App.Vector(0, 0, 10), App.Rotation())
add_polygon(sketch22, [(-8.8, -29.2), (-8.8, -30.2), (24.2, -30.2), (24.2, -29.2)])  # lines 0-3
sketch22.addConstraint(Sketcher.Constraint("Vertical", 0))
sketch22.addConstraint(Sketcher.Constraint("Horizontal", 1))
sketch22.addConstraint(Sketcher.Constraint("Vertical", 2))
sketch22.addConstraint(Sketcher.Constraint("Horizontal", 3))
sketch22.addConstraint(Sketcher.Constraint("DistanceX", 1, 1, 1, 2, Q("33 mm")))
sketch22.addConstraint(Sketcher.Constraint("DistanceY", 0, 2, 0, 1, Q("1 mm")))
sketch22.addConstraint(Sketcher.Constraint("DistanceY", 0, 2, -1, 1, Q("30.17316 mm")))
sketch22.addConstraint(Sketcher.Constraint("DistanceX", 0, 2, -1, 1, Q("8.757576 mm")))
pocket12 = doc.addObject("PartDesign::Pocket", "Pocket011")
body.addObject(pocket12)
pocket12.Profile = sketch22
pocket12.Length = 9

# Sketch on XY plane
sketch23 = doc.addObject("Sketcher::SketchObject", "Sketch022")
body.addObject(sketch23)
sketch23.AttachmentSupport = (doc.XY_Plane, [""])
sketch23.MapMode = "FlatFace"
sketch23.AttachmentOffset = App.Placement(App.Vector(0, 0, 1), App.Rotation())
add_polygon(sketch23, [(23.2, -29.2), (23.2, -30.2), (24.2, -30.2), (24.2, -29.2)])  # lines 0-3
sketch23.addConstraint(Sketcher.Constraint("Vertical", 0))
sketch23.addConstraint(Sketcher.Constraint("Horizontal", 1))
sketch23.addConstraint(Sketcher.Constraint("Vertical", 2))
sketch23.addConstraint(Sketcher.Constraint("Horizontal", 3))
sketch23.addConstraint(Sketcher.Constraint("Equal", 3, 0))
sketch23.addConstraint(Sketcher.Constraint("DistanceX", 1, 1, 1, 2, Q("1 mm")))
sketch23.addConstraint(Sketcher.Constraint("DistanceY", 0, 2, -1, 1, Q("30.17316 mm")))
sketch23.addConstraint(Sketcher.Constraint("DistanceX", -1, 1, 0, 2, Q("23.242424 mm")))
pad11 = doc.addObject("PartDesign::Pad", "Pad010")
body.addObject(pad11)
pad11.Profile = sketch23
pad11.Length = 9

doc.recompute()
